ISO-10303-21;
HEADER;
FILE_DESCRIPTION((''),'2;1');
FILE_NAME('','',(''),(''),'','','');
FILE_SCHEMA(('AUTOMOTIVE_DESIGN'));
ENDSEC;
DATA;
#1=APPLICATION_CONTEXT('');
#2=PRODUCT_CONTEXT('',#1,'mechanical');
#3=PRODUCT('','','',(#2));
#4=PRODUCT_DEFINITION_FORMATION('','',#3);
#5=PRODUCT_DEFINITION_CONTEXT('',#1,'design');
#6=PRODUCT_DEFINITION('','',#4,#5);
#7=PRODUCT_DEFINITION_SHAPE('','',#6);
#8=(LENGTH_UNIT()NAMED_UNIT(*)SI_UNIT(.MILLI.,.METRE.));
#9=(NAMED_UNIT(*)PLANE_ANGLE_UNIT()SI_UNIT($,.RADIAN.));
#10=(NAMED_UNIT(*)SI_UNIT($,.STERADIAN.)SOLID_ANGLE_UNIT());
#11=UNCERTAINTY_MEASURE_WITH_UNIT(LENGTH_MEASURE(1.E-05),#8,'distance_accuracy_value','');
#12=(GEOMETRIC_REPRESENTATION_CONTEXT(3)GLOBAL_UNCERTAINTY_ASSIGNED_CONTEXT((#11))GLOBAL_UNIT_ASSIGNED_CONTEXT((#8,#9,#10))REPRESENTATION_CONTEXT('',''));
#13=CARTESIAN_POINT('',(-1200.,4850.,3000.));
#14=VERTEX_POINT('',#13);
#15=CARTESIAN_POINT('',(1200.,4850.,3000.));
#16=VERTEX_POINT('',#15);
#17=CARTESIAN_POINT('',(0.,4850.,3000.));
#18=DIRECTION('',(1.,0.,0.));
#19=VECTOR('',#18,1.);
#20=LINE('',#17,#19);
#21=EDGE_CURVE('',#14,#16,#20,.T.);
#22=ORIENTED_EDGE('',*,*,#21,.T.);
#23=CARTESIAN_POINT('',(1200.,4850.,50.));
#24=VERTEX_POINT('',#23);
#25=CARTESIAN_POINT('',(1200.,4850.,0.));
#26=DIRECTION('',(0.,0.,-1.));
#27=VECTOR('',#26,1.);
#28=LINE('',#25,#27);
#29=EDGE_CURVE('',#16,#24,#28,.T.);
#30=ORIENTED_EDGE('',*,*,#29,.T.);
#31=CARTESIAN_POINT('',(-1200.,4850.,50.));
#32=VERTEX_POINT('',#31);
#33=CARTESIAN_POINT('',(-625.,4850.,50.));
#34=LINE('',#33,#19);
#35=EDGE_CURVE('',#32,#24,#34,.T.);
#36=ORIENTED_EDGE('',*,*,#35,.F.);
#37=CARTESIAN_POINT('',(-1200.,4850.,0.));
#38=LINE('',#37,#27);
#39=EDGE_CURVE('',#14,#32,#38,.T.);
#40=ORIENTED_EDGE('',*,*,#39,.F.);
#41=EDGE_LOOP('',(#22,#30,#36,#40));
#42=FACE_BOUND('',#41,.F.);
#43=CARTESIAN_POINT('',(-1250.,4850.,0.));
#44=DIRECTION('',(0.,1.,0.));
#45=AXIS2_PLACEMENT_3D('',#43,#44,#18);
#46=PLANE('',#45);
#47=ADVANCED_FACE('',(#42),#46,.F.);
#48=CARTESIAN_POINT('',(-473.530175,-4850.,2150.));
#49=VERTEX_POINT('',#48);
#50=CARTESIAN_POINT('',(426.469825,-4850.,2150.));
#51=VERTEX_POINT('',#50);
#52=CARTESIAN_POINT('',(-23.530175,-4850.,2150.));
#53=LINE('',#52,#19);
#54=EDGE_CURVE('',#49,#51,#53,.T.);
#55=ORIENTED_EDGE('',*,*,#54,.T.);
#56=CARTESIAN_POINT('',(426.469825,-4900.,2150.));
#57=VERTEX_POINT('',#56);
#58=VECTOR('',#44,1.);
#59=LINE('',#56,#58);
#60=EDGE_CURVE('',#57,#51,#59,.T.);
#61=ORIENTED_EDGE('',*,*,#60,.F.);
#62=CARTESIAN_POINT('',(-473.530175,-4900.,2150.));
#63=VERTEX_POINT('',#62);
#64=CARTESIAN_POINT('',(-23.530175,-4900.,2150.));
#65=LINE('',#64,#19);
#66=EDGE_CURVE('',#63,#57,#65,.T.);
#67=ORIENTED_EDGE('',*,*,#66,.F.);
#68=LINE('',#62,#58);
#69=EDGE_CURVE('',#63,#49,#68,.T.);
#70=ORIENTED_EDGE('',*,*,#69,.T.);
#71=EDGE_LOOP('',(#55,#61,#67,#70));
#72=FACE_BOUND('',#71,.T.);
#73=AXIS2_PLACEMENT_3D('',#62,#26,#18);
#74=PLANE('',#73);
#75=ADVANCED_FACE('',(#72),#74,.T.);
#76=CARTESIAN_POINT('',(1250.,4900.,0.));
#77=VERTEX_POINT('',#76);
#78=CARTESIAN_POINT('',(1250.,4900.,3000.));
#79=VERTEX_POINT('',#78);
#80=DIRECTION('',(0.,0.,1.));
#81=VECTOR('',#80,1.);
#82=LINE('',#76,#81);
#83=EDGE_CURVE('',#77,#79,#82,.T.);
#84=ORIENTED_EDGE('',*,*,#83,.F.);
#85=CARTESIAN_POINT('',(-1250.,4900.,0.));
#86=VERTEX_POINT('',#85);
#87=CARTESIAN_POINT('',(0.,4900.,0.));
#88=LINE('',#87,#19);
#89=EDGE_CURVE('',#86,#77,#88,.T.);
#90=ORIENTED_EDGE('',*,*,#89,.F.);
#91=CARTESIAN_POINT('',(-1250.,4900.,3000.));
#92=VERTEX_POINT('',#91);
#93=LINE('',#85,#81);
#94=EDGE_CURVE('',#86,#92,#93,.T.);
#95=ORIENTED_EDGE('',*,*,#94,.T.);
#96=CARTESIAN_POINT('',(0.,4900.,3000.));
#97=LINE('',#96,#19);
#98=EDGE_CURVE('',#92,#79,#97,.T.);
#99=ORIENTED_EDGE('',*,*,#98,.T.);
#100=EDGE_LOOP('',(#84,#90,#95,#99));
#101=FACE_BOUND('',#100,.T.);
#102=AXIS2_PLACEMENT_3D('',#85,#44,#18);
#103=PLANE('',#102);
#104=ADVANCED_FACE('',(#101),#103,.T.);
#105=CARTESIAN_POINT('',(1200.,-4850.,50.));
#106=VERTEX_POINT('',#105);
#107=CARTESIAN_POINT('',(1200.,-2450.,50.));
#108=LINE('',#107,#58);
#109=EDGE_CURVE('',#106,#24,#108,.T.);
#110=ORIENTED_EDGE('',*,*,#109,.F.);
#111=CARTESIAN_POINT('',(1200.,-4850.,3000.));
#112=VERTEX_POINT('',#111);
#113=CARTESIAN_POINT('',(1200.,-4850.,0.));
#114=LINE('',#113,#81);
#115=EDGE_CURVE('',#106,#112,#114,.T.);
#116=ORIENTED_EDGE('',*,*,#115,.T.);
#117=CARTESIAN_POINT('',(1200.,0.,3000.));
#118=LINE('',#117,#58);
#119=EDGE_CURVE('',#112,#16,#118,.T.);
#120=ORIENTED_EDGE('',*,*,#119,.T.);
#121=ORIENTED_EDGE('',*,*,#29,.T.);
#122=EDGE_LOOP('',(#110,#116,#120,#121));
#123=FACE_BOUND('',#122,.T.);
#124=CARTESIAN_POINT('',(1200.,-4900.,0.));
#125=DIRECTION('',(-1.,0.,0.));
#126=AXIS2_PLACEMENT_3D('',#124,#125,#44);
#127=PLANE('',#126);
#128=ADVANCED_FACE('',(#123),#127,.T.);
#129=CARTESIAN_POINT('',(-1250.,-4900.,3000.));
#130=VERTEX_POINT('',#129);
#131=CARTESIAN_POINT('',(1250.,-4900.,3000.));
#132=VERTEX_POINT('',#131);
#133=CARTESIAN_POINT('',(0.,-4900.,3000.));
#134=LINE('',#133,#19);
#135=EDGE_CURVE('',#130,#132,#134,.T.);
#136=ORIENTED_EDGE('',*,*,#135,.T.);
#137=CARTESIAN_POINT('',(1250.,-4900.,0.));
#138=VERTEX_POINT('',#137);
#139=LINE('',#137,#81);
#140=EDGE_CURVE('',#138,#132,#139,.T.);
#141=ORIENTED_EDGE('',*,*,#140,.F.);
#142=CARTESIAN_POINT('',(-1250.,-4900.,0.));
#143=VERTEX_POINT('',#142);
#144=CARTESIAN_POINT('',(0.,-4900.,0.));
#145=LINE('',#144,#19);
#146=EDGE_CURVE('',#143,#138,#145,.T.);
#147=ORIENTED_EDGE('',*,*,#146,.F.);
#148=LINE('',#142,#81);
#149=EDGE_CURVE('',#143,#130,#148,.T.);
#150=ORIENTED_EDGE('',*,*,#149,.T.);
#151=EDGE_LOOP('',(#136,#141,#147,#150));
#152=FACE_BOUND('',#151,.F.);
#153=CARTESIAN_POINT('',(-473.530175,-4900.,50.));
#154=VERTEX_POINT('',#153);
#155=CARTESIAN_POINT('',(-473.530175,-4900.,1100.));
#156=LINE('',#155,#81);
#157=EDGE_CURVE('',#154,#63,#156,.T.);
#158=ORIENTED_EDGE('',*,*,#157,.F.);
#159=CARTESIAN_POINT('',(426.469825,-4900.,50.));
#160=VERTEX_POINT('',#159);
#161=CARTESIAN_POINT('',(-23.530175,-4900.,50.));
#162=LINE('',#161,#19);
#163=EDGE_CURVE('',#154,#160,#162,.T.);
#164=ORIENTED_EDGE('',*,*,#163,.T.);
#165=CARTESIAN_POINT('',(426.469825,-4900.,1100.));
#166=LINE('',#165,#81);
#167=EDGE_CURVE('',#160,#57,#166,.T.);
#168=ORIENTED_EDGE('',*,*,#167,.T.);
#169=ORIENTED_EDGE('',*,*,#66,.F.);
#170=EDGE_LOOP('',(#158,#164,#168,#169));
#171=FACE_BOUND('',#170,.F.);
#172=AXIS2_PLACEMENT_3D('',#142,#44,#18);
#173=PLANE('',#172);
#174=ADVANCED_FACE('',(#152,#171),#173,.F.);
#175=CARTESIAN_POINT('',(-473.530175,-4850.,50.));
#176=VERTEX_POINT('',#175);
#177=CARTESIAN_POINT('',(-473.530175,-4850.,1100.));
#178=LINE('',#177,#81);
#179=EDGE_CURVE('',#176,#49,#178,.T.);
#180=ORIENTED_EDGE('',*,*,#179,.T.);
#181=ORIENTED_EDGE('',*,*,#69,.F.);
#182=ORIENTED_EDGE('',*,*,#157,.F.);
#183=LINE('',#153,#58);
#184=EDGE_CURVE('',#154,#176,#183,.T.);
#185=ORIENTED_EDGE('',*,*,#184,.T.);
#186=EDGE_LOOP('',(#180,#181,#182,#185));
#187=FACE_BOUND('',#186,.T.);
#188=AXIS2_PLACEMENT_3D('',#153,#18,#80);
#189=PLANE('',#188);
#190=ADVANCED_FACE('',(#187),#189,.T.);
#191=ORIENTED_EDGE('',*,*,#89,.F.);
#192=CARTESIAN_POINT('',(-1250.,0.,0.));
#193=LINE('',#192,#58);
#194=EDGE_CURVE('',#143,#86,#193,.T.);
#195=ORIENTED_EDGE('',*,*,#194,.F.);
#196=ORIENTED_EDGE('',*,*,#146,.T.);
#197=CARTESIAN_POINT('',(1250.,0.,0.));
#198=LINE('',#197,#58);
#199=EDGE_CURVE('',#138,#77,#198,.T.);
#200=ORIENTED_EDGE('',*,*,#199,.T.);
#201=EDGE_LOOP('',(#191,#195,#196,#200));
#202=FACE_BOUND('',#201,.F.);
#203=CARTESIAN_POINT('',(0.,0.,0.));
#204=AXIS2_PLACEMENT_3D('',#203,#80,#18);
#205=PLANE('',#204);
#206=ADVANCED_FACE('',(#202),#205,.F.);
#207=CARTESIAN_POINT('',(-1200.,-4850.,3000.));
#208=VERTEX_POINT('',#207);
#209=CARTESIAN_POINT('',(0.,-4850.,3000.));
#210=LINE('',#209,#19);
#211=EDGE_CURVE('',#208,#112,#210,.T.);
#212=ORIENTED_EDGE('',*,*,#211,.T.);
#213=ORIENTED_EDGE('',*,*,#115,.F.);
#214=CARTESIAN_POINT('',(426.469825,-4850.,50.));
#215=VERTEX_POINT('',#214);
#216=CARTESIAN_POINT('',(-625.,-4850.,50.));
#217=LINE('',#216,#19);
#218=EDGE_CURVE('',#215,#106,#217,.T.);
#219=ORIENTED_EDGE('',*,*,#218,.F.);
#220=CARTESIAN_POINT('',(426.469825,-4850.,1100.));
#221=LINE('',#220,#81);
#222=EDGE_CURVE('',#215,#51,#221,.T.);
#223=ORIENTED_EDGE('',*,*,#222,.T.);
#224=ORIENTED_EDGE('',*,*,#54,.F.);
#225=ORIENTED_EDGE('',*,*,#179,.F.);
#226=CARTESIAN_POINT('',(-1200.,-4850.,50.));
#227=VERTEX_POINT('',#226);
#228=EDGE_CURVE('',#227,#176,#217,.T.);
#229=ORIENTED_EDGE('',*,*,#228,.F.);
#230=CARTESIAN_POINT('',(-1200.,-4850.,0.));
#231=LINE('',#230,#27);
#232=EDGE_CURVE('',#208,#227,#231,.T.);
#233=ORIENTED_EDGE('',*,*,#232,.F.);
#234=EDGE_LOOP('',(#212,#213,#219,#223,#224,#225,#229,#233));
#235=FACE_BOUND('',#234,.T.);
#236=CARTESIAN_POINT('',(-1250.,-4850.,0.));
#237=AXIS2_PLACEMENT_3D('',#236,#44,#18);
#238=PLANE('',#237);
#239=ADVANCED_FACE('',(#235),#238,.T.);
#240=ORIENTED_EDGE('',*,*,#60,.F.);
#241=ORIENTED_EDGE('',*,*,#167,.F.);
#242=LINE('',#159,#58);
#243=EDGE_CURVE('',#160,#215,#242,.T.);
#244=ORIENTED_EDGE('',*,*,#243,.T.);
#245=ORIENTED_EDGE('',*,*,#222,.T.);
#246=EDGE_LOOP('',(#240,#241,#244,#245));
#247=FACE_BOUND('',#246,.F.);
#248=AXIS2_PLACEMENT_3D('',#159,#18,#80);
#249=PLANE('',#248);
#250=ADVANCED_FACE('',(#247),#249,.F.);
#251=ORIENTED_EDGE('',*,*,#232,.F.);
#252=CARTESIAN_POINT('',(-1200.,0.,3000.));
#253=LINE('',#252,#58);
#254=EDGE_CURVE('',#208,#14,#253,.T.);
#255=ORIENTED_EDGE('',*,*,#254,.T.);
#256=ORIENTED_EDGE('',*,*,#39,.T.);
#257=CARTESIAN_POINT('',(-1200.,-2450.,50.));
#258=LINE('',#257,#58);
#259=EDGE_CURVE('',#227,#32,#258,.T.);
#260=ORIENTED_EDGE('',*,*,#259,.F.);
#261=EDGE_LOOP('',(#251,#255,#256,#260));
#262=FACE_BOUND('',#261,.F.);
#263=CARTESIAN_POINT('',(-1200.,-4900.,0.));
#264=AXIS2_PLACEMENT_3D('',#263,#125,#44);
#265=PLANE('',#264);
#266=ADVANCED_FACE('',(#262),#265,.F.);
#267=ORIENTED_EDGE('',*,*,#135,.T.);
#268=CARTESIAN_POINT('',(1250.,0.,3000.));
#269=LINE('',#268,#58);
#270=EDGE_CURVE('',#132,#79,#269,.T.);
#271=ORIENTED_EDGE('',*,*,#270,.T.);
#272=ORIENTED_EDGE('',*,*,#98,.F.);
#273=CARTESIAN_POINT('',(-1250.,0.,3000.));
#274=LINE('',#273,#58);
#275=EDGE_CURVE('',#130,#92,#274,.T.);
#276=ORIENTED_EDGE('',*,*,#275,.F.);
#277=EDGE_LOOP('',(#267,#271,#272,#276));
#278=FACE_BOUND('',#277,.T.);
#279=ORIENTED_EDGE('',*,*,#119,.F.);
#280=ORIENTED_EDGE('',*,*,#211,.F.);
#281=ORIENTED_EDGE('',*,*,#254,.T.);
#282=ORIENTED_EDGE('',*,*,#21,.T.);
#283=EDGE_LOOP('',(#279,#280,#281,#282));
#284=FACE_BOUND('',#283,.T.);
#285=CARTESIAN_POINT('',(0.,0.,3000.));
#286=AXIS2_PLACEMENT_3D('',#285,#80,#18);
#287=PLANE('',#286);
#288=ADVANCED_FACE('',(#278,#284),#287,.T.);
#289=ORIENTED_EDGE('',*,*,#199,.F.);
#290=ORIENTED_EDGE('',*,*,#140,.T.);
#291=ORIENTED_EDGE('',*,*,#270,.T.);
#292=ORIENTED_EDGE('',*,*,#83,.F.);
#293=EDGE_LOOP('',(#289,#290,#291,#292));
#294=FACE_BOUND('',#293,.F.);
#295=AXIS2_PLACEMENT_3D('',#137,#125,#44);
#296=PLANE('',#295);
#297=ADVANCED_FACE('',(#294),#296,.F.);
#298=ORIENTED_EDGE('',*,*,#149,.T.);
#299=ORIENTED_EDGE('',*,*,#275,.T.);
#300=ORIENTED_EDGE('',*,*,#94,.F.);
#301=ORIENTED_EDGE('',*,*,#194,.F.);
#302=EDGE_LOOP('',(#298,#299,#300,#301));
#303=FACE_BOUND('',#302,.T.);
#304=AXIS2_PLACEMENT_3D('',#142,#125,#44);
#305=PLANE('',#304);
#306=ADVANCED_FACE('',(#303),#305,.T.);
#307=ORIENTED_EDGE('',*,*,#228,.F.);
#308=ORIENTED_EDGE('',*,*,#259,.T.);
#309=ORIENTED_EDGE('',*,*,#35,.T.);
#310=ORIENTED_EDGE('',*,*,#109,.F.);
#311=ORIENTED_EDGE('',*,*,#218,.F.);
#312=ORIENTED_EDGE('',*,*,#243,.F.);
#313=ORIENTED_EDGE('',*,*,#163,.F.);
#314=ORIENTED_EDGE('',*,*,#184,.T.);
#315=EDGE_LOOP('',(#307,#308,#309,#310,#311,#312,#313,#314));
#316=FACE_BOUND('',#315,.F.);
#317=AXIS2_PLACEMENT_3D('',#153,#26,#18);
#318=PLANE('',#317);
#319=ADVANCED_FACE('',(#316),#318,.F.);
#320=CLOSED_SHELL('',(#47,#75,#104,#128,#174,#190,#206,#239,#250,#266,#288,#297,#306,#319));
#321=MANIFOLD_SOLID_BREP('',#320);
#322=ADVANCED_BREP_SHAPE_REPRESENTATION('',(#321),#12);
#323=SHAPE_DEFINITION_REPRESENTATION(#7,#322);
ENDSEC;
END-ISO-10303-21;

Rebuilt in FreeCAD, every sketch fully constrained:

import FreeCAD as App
import Part
import Sketcher


def faces_at(feature, points):
    """Names of the faces that lie closest to the given points."""
    faces = feature.Shape.Faces
    near = lambda p: min(range(len(faces)), key=lambda i: faces[i].distToShape(Part.Vertex(*p))[0])
    return sorted({f"Face{near(p) + 1}" for p in points})


def add_polygon(sketch, points):
    """Adds a closed chain of lines whose ends are joined by coincident constraints."""
    first, n = sketch.GeometryCount, len(points)
    for a, b in zip(points, points[1:] + points[:1]):
        sketch.addGeometry(Part.LineSegment(App.Vector(*a, 0), App.Vector(*b, 0)), False)
    for i in range(n):
        sketch.addConstraint(Sketcher.Constraint("Coincident", first + i, 2, first + (i + 1) % n, 1))

doc = App.newDocument("Part")
params = doc.addObject("Spreadsheet::Sheet", "Params")
for row, (alias, value) in enumerate([
    ("sketch1_width", "2500 mm"),
    ("sketch1_height", "9800 mm"),
    ("pad1_length", "3000 mm"),
    ("thickness_wall", "50 mm"),
    ("sketch2_width", "900 mm"),
    ("sketch2_height", "2100 mm"),
    ("pocket1_length", "50 mm"),
], start=1):
    params.set(f"A{row}", alias)
    params.set(f"B{row}", "=" + value)
    params.setAlias(f"B{row}", alias)

body = doc.addObject("PartDesign::Body", "Body")

# Sketch on XY plane
sketch1 = body.newObject("Sketcher::SketchObject", "Sketch")
sketch1.AttachmentSupport = (doc.getObject("XY_Plane"), [""])
sketch1.MapMode = "FlatFace"
add_polygon(sketch1, [(-1250, 4900), (-1250, -4900), (1250, -4900), (1250, 4900)])  # lines 0-3
sketch1.addConstraint([
    Sketcher.Constraint("Vertical", 0),
    Sketcher.Constraint("Horizontal", 1),
    Sketcher.Constraint("Vertical", 2),
    Sketcher.Constraint("Horizontal", 3),
    Sketcher.Constraint("Symmetric", 0, 2, 2, 2, -1, 1),
    Sketcher.Constraint("DistanceX", 1, 1, 1, 2, 2500.0),
    Sketcher.Constraint("DistanceY", 0, 2, 0, 1, 9800.0),
])
sketch1.setExpression("Constraints[9]", "Params.sketch1_width")
sketch1.setExpression("Constraints[10]", "Params.sketch1_height")
pad1 = body.newObject("PartDesign::Pad", "Pad")
pad1.Profile = sketch1
pad1.setExpression("Length", "Params.pad1_length")
doc.recompute()

thickness = body.newObject("PartDesign::Thickness", "Thickness")
thickness.Base = (pad1, faces_at(pad1, [(0, 0, 3000)]))
thickness.setExpression("Value", "Params.thickness_wall")
thickness.Reversed = True
thickness.Join = "Arc"

# Sketch on XZ plane
sketch2 = body.newObject("Sketcher::SketchObject", "Sketch001")
sketch2.AttachmentSupport = (doc.getObject("XZ_Plane"), [""])
sketch2.MapMode = "FlatFace"
sketch2.AttachmentOffset = App.Placement(App.Vector(0, 0, 4900), App.Rotation())
add_polygon(sketch2, [(-474, 2150), (-474, 50), (426, 50), (426, 2150)])  # lines 0-3
sketch2.addConstraint([
    Sketcher.Constraint("Vertical", 0),
    Sketcher.Constraint("Horizontal", 1),
    Sketcher.Constraint("Vertical", 2),
    Sketcher.Constraint("Horizontal", 3),
    Sketcher.Constraint("DistanceX", 1, 1, 1, 2, 900.0),
    Sketcher.Constraint("DistanceY", 0, 2, 0, 1, 2100.0),
    Sketcher.Constraint("DistanceY", -1, 1, 0, 2, 50.0),
    Sketcher.Constraint("DistanceX", 0, 2, -1, 1, 473.530175),
])
sketch2.setExpression("Constraints[8]", "Params.sketch2_width")
sketch2.setExpression("Constraints[9]", "Params.sketch2_height")
pocket1 = body.newObject("PartDesign::Pocket", "Pocket")
pocket1.Profile = sketch2
pocket1.setExpression("Length", "Params.pocket1_length")

doc.recompute()
